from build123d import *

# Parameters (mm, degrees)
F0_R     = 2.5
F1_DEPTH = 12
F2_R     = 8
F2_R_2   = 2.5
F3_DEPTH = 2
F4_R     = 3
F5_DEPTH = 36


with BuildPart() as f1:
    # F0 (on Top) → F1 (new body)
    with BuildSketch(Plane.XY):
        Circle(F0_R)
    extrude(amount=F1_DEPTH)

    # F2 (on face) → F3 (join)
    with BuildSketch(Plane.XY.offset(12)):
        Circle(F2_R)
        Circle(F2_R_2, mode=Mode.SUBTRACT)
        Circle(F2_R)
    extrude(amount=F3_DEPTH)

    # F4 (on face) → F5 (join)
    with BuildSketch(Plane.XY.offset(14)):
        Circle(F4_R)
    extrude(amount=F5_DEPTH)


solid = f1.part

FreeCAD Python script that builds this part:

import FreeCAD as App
import Part
import Sketcher

V = App.Vector

doc = App.newDocument("Part")
body = doc.addObject("PartDesign::Body", "Body")

# Sketch on XY plane
sketch1 = doc.addObject("Sketcher::SketchObject", "Sketch")
body.addObject(sketch1)
sketch1.AttachmentSupport = (doc.XY_Plane, [""])
sketch1.MapMode = "FlatFace"
sketch1.addGeometry(Part.Circle(V(0, 0, 0), V(0, 0, 1), 2.5), False)
sketch1.addConstraint(Sketcher.Constraint("Coincident", 0, 3, -1, 1))
sketch1.addConstraint(Sketcher.Constraint("Diameter", 0, 5.0))
pad1 = doc.addObject("PartDesign::Pad", "Pad")
body.addObject(pad1)
pad1.Profile = sketch1
pad1.Length = 12

# Sketch on XY plane
sketch2 = doc.addObject("Sketcher::SketchObject", "Sketch001")
body.addObject(sketch2)
sketch2.AttachmentSupport = (doc.XY_Plane, [""])
sketch2.MapMode = "FlatFace"
sketch2.AttachmentOffset = App.Placement(V(0, 0, 12), App.Rotation())
sketch2.addGeometry(Part.Circle(V(0, 0, 0), V(0, 0, 1), 8), False)
sketch2.addConstraint(Sketcher.Constraint("Coincident", 0, 3, -1, 1))
sketch2.addConstraint(Sketcher.Constraint("Diameter", 0, 16.0))
pad2 = doc.addObject("PartDesign::Pad", "Pad001")
body.addObject(pad2)
pad2.Profile = sketch2
pad2.Length = 2

# Sketch on XY plane
sketch3 = doc.addObject("Sketcher::SketchObject", "Sketch002")
body.addObject(sketch3)
sketch3.AttachmentSupport = (doc.XY_Plane, [""])
sketch3.MapMode = "FlatFace"
sketch3.AttachmentOffset = App.Placement(V(0, 0, 14), App.Rotation())
sketch3.addGeometry(Part.Circle(V(0, 0, 0), V(0, 0, 1), 3), False)
sketch3.addConstraint(Sketcher.Constraint("Coincident", 0, 3, -1, 1))
sketch3.addConstraint(Sketcher.Constraint("Diameter", 0, 6.0))
pad3 = doc.addObject("PartDesign::Pad", "Pad002")
body.addObject(pad3)
pad3.Profile = sketch3
pad3.Length = 36

doc.recompute()
